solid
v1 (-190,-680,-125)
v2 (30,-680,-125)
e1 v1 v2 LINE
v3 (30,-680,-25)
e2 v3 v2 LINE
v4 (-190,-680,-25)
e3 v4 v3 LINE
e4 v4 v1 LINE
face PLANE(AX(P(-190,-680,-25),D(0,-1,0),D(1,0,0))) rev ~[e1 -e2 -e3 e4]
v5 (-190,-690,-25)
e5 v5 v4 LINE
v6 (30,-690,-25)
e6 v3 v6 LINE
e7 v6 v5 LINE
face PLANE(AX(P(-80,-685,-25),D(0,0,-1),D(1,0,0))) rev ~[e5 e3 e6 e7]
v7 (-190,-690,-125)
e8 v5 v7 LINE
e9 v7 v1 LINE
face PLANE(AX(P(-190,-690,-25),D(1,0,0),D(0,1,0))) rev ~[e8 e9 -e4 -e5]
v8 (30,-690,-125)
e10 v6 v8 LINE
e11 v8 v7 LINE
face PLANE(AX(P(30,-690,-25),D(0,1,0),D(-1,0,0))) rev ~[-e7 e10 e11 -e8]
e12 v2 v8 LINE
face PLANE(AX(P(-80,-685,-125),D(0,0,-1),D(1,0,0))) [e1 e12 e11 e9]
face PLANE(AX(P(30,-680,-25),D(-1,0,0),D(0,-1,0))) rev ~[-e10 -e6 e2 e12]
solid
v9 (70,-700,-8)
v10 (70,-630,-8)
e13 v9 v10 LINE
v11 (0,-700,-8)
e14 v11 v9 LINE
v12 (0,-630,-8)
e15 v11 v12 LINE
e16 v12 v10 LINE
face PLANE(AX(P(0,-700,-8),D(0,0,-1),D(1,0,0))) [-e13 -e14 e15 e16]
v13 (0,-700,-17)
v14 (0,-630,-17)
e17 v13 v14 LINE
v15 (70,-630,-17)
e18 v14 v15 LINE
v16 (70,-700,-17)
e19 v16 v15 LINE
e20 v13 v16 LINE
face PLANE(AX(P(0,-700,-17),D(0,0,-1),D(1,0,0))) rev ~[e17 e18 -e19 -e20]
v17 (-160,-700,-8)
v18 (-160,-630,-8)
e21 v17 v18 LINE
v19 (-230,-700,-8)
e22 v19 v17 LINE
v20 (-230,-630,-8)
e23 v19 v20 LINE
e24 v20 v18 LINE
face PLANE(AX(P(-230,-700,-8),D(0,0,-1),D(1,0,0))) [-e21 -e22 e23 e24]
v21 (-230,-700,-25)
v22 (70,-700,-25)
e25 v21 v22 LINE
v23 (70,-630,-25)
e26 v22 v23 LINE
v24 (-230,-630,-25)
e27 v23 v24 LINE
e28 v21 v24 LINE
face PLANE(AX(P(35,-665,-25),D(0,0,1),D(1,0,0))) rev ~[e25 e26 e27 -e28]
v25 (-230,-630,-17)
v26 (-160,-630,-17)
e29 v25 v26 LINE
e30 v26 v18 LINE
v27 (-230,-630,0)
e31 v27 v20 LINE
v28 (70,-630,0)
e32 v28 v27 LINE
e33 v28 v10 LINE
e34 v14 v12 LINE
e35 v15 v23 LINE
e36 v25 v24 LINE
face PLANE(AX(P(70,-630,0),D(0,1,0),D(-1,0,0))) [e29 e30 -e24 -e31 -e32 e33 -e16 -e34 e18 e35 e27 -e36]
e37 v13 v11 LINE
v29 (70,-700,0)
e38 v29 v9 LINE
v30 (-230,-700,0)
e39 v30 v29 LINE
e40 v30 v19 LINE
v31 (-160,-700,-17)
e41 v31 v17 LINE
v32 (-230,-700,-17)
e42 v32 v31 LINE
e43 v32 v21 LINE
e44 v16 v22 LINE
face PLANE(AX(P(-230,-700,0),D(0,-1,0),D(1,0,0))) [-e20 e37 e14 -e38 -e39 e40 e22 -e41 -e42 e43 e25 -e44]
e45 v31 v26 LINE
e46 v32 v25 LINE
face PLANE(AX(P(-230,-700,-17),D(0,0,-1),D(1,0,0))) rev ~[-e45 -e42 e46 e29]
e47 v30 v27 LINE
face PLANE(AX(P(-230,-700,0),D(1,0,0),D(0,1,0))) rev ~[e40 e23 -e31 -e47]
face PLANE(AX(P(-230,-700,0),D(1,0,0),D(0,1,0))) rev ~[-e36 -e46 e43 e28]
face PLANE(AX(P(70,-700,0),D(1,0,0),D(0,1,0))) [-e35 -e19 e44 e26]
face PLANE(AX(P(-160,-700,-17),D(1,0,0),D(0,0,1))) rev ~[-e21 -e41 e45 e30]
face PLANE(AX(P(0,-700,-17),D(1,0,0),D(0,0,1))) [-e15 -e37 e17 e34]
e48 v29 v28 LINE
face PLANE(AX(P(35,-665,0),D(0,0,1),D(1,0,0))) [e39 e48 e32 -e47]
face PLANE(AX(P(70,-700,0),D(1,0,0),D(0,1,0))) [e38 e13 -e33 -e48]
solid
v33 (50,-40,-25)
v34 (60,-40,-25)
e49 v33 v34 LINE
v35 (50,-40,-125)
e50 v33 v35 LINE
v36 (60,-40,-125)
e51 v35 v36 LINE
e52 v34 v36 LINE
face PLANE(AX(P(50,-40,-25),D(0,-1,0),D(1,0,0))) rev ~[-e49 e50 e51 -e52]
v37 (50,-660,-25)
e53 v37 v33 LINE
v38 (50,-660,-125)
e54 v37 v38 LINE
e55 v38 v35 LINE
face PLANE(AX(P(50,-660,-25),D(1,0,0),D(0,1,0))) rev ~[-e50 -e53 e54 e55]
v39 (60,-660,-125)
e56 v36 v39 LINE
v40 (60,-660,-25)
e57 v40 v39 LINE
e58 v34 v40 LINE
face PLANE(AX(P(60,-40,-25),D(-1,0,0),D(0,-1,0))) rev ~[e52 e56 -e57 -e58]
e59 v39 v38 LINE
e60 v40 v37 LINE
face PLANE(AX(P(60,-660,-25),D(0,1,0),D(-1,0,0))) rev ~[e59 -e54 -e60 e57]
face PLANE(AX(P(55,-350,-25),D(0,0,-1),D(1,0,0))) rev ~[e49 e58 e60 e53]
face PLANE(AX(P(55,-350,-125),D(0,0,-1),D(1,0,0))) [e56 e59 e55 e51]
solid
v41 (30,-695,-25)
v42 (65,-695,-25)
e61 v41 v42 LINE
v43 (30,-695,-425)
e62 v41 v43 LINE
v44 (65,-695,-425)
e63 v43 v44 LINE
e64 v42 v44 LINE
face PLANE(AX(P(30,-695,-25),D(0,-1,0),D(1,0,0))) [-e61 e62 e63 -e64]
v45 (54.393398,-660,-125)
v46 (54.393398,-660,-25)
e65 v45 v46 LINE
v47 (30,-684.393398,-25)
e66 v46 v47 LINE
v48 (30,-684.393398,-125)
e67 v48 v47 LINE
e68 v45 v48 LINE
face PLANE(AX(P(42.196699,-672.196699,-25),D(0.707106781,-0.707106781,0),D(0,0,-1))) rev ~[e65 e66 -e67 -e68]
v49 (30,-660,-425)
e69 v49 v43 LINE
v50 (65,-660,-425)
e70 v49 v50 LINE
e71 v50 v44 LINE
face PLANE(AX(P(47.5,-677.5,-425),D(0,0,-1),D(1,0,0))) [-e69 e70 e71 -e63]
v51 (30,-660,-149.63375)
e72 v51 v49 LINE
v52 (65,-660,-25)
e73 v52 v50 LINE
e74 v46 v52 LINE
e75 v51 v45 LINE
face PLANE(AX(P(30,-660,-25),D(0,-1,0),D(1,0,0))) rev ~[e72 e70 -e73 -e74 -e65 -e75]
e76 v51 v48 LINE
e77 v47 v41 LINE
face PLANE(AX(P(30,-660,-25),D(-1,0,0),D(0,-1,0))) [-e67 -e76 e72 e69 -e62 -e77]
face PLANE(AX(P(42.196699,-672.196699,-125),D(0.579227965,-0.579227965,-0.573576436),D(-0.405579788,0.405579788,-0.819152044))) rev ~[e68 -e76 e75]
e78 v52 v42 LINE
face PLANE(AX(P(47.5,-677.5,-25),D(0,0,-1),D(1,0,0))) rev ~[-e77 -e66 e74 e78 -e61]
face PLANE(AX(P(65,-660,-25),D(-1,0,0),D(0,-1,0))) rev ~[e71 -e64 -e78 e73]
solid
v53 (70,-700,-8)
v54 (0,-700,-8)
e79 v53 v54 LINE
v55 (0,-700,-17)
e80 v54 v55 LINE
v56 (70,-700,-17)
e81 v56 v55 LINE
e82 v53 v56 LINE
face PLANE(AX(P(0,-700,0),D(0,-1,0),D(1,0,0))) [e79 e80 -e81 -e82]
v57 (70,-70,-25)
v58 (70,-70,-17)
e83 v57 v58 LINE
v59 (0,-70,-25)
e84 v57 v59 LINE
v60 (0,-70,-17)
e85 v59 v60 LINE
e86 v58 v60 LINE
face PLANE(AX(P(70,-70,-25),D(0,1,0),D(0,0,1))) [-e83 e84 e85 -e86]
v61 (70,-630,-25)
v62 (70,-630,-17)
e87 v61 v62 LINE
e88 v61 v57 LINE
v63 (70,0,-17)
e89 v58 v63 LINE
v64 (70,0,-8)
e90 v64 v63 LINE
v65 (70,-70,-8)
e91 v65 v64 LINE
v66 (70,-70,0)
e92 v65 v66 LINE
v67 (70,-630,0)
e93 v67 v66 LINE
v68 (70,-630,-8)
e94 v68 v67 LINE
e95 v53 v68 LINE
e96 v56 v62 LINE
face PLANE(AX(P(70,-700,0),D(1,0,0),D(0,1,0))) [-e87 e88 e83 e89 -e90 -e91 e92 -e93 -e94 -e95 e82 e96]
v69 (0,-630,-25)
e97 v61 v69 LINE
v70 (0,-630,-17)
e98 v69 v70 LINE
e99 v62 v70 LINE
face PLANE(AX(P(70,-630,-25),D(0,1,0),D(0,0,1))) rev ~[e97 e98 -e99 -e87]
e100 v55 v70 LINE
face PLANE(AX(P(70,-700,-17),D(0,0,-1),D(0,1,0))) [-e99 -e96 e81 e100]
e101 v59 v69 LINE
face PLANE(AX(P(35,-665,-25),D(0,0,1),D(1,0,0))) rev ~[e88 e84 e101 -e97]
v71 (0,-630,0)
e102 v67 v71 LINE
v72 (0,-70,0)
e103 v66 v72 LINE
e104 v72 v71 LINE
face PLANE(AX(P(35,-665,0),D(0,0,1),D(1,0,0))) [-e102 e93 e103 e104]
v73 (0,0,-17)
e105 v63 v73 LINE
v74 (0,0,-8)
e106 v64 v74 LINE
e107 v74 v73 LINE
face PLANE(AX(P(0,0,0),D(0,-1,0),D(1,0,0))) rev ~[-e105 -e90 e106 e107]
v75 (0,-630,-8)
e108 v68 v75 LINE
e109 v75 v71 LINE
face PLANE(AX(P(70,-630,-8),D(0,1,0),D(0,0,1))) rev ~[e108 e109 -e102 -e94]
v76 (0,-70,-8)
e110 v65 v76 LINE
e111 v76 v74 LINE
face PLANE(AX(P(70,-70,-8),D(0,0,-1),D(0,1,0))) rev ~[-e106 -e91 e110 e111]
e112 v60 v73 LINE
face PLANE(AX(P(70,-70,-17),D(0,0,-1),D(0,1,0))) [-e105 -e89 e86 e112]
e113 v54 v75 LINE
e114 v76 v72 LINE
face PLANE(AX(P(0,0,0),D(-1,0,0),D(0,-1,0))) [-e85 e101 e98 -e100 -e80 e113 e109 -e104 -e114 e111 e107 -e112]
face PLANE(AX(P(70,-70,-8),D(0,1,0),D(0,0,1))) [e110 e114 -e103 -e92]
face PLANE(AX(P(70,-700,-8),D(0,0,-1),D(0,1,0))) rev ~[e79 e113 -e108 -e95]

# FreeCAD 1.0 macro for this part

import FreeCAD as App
import Part
import Sketcher
from FreeCAD import Vector
Q = App.Units.Quantity


def add_polygon(sketch, points):
    """Adds a closed chain of lines whose ends are joined by coincident constraints."""
    first, n = sketch.GeometryCount, len(points)
    for a, b in zip(points, points[1:] + points[:1]):
        sketch.addGeometry(Part.LineSegment(App.Vector(*a, 0), App.Vector(*b, 0)), False)
    for i in range(n):
        sketch.addConstraint(Sketcher.Constraint("Coincident", first + i, 2, first + (i + 1) % n, 1))

doc = App.newDocument("Part")
body = doc.addObject("PartDesign::Body", "Body")

# Sketch on XY plane
sketch1 = doc.addObject("Sketcher::SketchObject", "Sketch")
body.addObject(sketch1)
sketch1.AttachmentSupport = (doc.XY_Plane, [""])
sketch1.MapMode = "FlatFace"
add_polygon(sketch1, [(0, -700), (70, -700), (70, 0), (0, 0)])  # lines 0-3
sketch1.addConstraint(Sketcher.Constraint("Horizontal", 0))
sketch1.addConstraint(Sketcher.Constraint("Vertical", 1))
sketch1.addConstraint(Sketcher.Constraint("Horizontal", 2))
sketch1.addConstraint(Sketcher.Constraint("Vertical", 3))
sketch1.addConstraint(Sketcher.Constraint("Coincident", 2, 2, -1, 1))
sketch1.addConstraint(Sketcher.Constraint("DistanceX", 0, 1, 0, 2, 70.0))
sketch1.addConstraint(Sketcher.Constraint("DistanceY", 1, 1, 1, 2, 700.0))
pad1 = doc.addObject("PartDesign::Pad", "Pad")
body.addObject(pad1)
pad1.Profile = sketch1
pad1.Length = 25
pad1.Reversed = True

# Sketch on YZ plane
sketch2 = doc.addObject("Sketcher::SketchObject", "Sketch001")
body.addObject(sketch2)
sketch2.AttachmentSupport = (doc.YZ_Plane, [""])
sketch2.MapMode = "FlatFace"
sketch2.AttachmentOffset = App.Placement(Vector(0, 0, 70), App.Rotation())
add_polygon(sketch2, [(-70, 0), (-70, -8), (0, -8), (0, 0)])  # lines 0-3
add_polygon(sketch2, [(-70, -17), (-70, -25), (0, -25), (0, -17)])  # lines 4-7
add_polygon(sketch2, [(-700, 0), (-700, -8), (-630, -8), (-630, 0)])  # lines 8-11
add_polygon(sketch2, [(-700, -17), (-700, -25), (-630, -25), (-630, -17)])  # lines 12-15
sketch2.addConstraint(Sketcher.Constraint("Vertical", 0))
sketch2.addConstraint(Sketcher.Constraint("Horizontal", 1))
sketch2.addConstraint(Sketcher.Constraint("Vertical", 2))
sketch2.addConstraint(Sketcher.Constraint("Horizontal", 3))
sketch2.addConstraint(Sketcher.Constraint("Vertical", 4))
sketch2.addConstraint(Sketcher.Constraint("Horizontal", 5))
sketch2.addConstraint(Sketcher.Constraint("Vertical", 6))
sketch2.addConstraint(Sketcher.Constraint("Horizontal", 7))
sketch2.addConstraint(Sketcher.Constraint("Vertical", 8))
sketch2.addConstraint(Sketcher.Constraint("Horizontal", 9))
sketch2.addConstraint(Sketcher.Constraint("Vertical", 10))
sketch2.addConstraint(Sketcher.Constraint("Horizontal", 11))
sketch2.addConstraint(Sketcher.Constraint("Vertical", 12))
sketch2.addConstraint(Sketcher.Constraint("Horizontal", 13))
sketch2.addConstraint(Sketcher.Constraint("Vertical", 14))
sketch2.addConstraint(Sketcher.Constraint("Horizontal", 15))
sketch2.addConstraint(Sketcher.Constraint("Coincident", 2, 2, -1, 1))
sketch2.addConstraint(Sketcher.Constraint("PointOnObject", 5, 2, -2))
sketch2.addConstraint(Sketcher.Constraint("PointOnObject", 10, 2, -1))
sketch2.addConstraint(Sketcher.Constraint("Horizontal", 1, 2, 8, 2))
sketch2.addConstraint(Sketcher.Constraint("Horizontal", 5, 2, 12, 2))
sketch2.addConstraint(Sketcher.Constraint("Horizontal", 7, 2, 14, 2))
sketch2.addConstraint(Sketcher.Constraint("Vertical", 3, 2, 4, 2))
sketch2.addConstraint(Sketcher.Constraint("Vertical", 11, 2, 12, 2))
sketch2.addConstraint(Sketcher.Constraint("Vertical", 10, 2, 13, 2))
sketch2.addConstraint(Sketcher.Constraint("Equal", 7, 9))
sketch2.addConstraint(Sketcher.Constraint("Equal", 2, 4))
sketch2.addConstraint(Sketcher.Constraint("DistanceX", 1, 1, 1, 2, 70.0))
sketch2.addConstraint(Sketcher.Constraint("DistanceY", 0, 2, 0, 1, 8.0))
sketch2.addConstraint(Sketcher.Constraint("DistanceY", 4, 2, -1, 1, 25.0))
sketch2.addConstraint(Sketcher.Constraint("DistanceX", 8, 2, -1, 1, 700.0))
pocket1 = doc.addObject("PartDesign::Pocket", "Pocket")
body.addObject(pocket1)
pocket1.Profile = sketch2
pocket1.Type = "ThroughAll"
body2 = doc.addObject("PartDesign::Body", "Body001")

# Sketch on XY plane
sketch3 = doc.addObject("Sketcher::SketchObject", "Sketch002")
body2.addObject(sketch3)
sketch3.AttachmentSupport = (doc.getObject("XY_Plane001"), [""])
sketch3.MapMode = "FlatFace"
add_polygon(sketch3, [(70, -700), (70, -630), (-230, -630), (-230, -700)])  # lines 0-3
sketch3.addConstraint(Sketcher.Constraint("Vertical", 0))
sketch3.addConstraint(Sketcher.Constraint("Horizontal", 1))
sketch3.addConstraint(Sketcher.Constraint("Vertical", 2))
sketch3.addConstraint(Sketcher.Constraint("Horizontal", 3))
sketch3.addConstraint(Sketcher.Constraint("DistanceX", 1, 2, 1, 1, 300.0))
sketch3.addConstraint(Sketcher.Constraint("DistanceY", 0, 1, 0, 2, 70.0))
sketch3.addConstraint(Sketcher.Constraint("DistanceX", -1, 1, 0, 2, 70.0))
sketch3.addConstraint(Sketcher.Constraint("DistanceY", 0, 2, -1, 1, 630.0))
pad2 = doc.addObject("PartDesign::Pad", "Pad001")
body2.addObject(pad2)
pad2.Profile = sketch3
pad2.Length = 25
pad2.Reversed = True

# Sketch on XZ plane
sketch4 = doc.addObject("Sketcher::SketchObject", "Sketch003")
body2.addObject(sketch4)
sketch4.AttachmentSupport = (doc.getObject("XZ_Plane001"), [""])
sketch4.MapMode = "FlatFace"
sketch4.AttachmentOffset = App.Placement(Vector(0, 0, 700), App.Rotation())
add_polygon(sketch4, [(0, -8), (0, -17), (70, -17), (70, -8)])  # lines 0-3
add_polygon(sketch4, [(-230, -8), (-230, -17), (-160, -17), (-160, -8)])  # lines 4-7
sketch4.addConstraint(Sketcher.Constraint("Vertical", 0))
sketch4.addConstraint(Sketcher.Constraint("Horizontal", 1))
sketch4.addConstraint(Sketcher.Constraint("Vertical", 2))
sketch4.addConstraint(Sketcher.Constraint("Horizontal", 3))
sketch4.addConstraint(Sketcher.Constraint("Vertical", 4))
sketch4.addConstraint(Sketcher.Constraint("Horizontal", 5))
sketch4.addConstraint(Sketcher.Constraint("Vertical", 6))
sketch4.addConstraint(Sketcher.Constraint("Horizontal", 7))
sketch4.addConstraint(Sketcher.Constraint("PointOnObject", 0, 2, -2))
sketch4.addConstraint(Sketcher.Constraint("Horizontal", 1, 2, 4, 2))
sketch4.addConstraint(Sketcher.Constraint("Horizontal", 3, 2, 6, 2))
sketch4.addConstraint(Sketcher.Constraint("Equal", 3, 5))
sketch4.addConstraint(Sketcher.Constraint("DistanceX", 1, 1, 1, 2, 70.0))
sketch4.addConstraint(Sketcher.Constraint("DistanceY", 0, 2, 0, 1, 9.0))
sketch4.addConstraint(Sketcher.Constraint("DistanceY", 0, 2, -1, 1, 17.0))
sketch4.addConstraint(Sketcher.Constraint("DistanceX", 4, 2, -1, 1, 230.0))
pocket2 = doc.addObject("PartDesign::Pocket", "Pocket001")
body2.addObject(pocket2)
pocket2.Profile = sketch4
pocket2.Type = "ThroughAll"
body3 = doc.addObject("PartDesign::Body", "Body002")

# Sketch on XY plane
sketch5 = doc.addObject("Sketcher::SketchObject", "Sketch004")
body3.addObject(sketch5)
sketch5.AttachmentSupport = (doc.getObject("XY_Plane002"), [""])
sketch5.MapMode = "FlatFace"
sketch5.AttachmentOffset = App.Placement(Vector(0, 0, -25), App.Rotation())
add_polygon(sketch5, [(30, -695), (30, -660), (65, -660), (65, -695)])  # lines 0-3
sketch5.addConstraint(Sketcher.Constraint("Vertical", 0))
sketch5.addConstraint(Sketcher.Constraint("Horizontal", 1))
sketch5.addConstraint(Sketcher.Constraint("Vertical", 2))
sketch5.addConstraint(Sketcher.Constraint("Horizontal", 3))
sketch5.addConstraint(Sketcher.Constraint("Equal", 3, 0))
sketch5.addConstraint(Sketcher.Constraint("DistanceX", 1, 1, 1, 2, 35.0))
sketch5.addConstraint(Sketcher.Constraint("DistanceX", -1, 1, 0, 2, 30.0))
sketch5.addConstraint(Sketcher.Constraint("DistanceY", 0, 2, -1, 1, 660.0))
pad3 = doc.addObject("PartDesign::Pad", "Pad002")
body3.addObject(pad3)
pad3.Profile = sketch5
pad3.Length = 400
pad3.Reversed = True

# Sketch on an angled plane
sketch6 = doc.addObject("Sketcher::SketchObject", "Sketch005")
body3.addObject(sketch6)
sketch6.Placement = App.Placement(Vector(-315, -315, 0), App.Rotation(Vector(-0.707106781, 0.707106781, 0), Vector(0, 0, 0.999999999), Vector(0.707106781, 0.707106781, 0), "ZXY"))
add_polygon(sketch6, [(-505, -125), (-488, -150), (-488, -25), (-505, -25)])  # lines 0-3
sketch6.addConstraint(Sketcher.Constraint("Vertical", 1))
sketch6.addConstraint(Sketcher.Constraint("Horizontal", 2))
sketch6.addConstraint(Sketcher.Constraint("Vertical", 3))
sketch6.addConstraint(Sketcher.Constraint("DistanceY", 3, 2, 3, 1, 100.0))
sketch6.addConstraint(Sketcher.Constraint("Angle", 0, Q("-55 deg")))
sketch6.addConstraint(Sketcher.Constraint("DistanceY", 1, 2, -1, 1, 25.0))
sketch6.addConstraint(Sketcher.Constraint("DistanceY", 1, 1, 1, 2, 124.63375))
sketch6.addConstraint(Sketcher.Constraint("DistanceX", 0, 2, -1, 1, 487.903679))
pocket3 = doc.addObject("PartDesign::Pocket", "Pocket002")
body3.addObject(pocket3)
pocket3.Profile = sketch6
pocket3.Length = 50
pocket3.Midplane = True
body4 = doc.addObject("PartDesign::Body", "Body003")

# Sketch on XY plane
sketch7 = doc.addObject("Sketcher::SketchObject", "Sketch006")
body4.addObject(sketch7)
sketch7.AttachmentSupport = (doc.getObject("XY_Plane003"), [""])
sketch7.MapMode = "FlatFace"
sketch7.AttachmentOffset = App.Placement(Vector(0, 0, -25), App.Rotation())
add_polygon(sketch7, [(60, -660), (50, -660), (50, -40), (60, -40)])  # lines 0-3
sketch7.addConstraint(Sketcher.Constraint("Horizontal", 0))
sketch7.addConstraint(Sketcher.Constraint("Vertical", 1))
sketch7.addConstraint(Sketcher.Constraint("Horizontal", 2))
sketch7.addConstraint(Sketcher.Constraint("Vertical", 3))
sketch7.addConstraint(Sketcher.Constraint("DistanceX", 0, 2, 0, 1, 10.0))
sketch7.addConstraint(Sketcher.Constraint("DistanceY", 1, 1, 1, 2, 620.0))
sketch7.addConstraint(Sketcher.Constraint("DistanceX", -1, 1, 0, 2, 50.0))
sketch7.addConstraint(Sketcher.Constraint("DistanceY", 0, 2, -1, 1, 660.0))
pad4 = doc.addObject("PartDesign::Pad", "Pad003")
body4.addObject(pad4)
pad4.Profile = sketch7
pad4.Length = 100
pad4.Reversed = True
body5 = doc.addObject("PartDesign::Body", "Body004")

# Sketch on XY plane
sketch8 = doc.addObject("Sketcher::SketchObject", "Sketch007")
body5.addObject(sketch8)
sketch8.AttachmentSupport = (doc.getObject("XY_Plane004"), [""])
sketch8.MapMode = "FlatFace"
sketch8.AttachmentOffset = App.Placement(Vector(0, 0, -25), App.Rotation())
add_polygon(sketch8, [(30, -690), (-190, -690), (-190, -680), (30, -680)])  # lines 0-3
sketch8.addConstraint(Sketcher.Constraint("Horizontal", 0))
sketch8.addConstraint(Sketcher.Constraint("Vertical", 1))
sketch8.addConstraint(Sketcher.Constraint("Horizontal", 2))
sketch8.addConstraint(Sketcher.Constraint("Vertical", 3))
sketch8.addConstraint(Sketcher.Constraint("DistanceX", 0, 2, 0, 1, 220.0))
sketch8.addConstraint(Sketcher.Constraint("DistanceY", 1, 1, 1, 2, 10.0))
sketch8.addConstraint(Sketcher.Constraint("DistanceX", 0, 2, -1, 1, 190.0))
sketch8.addConstraint(Sketcher.Constraint("DistanceY", 0, 2, -1, 1, 690.0))
pad5 = doc.addObject("PartDesign::Pad", "Pad004")
body5.addObject(pad5)
pad5.Profile = sketch8
pad5.Length = 100
pad5.Reversed = True

doc.recompute()
